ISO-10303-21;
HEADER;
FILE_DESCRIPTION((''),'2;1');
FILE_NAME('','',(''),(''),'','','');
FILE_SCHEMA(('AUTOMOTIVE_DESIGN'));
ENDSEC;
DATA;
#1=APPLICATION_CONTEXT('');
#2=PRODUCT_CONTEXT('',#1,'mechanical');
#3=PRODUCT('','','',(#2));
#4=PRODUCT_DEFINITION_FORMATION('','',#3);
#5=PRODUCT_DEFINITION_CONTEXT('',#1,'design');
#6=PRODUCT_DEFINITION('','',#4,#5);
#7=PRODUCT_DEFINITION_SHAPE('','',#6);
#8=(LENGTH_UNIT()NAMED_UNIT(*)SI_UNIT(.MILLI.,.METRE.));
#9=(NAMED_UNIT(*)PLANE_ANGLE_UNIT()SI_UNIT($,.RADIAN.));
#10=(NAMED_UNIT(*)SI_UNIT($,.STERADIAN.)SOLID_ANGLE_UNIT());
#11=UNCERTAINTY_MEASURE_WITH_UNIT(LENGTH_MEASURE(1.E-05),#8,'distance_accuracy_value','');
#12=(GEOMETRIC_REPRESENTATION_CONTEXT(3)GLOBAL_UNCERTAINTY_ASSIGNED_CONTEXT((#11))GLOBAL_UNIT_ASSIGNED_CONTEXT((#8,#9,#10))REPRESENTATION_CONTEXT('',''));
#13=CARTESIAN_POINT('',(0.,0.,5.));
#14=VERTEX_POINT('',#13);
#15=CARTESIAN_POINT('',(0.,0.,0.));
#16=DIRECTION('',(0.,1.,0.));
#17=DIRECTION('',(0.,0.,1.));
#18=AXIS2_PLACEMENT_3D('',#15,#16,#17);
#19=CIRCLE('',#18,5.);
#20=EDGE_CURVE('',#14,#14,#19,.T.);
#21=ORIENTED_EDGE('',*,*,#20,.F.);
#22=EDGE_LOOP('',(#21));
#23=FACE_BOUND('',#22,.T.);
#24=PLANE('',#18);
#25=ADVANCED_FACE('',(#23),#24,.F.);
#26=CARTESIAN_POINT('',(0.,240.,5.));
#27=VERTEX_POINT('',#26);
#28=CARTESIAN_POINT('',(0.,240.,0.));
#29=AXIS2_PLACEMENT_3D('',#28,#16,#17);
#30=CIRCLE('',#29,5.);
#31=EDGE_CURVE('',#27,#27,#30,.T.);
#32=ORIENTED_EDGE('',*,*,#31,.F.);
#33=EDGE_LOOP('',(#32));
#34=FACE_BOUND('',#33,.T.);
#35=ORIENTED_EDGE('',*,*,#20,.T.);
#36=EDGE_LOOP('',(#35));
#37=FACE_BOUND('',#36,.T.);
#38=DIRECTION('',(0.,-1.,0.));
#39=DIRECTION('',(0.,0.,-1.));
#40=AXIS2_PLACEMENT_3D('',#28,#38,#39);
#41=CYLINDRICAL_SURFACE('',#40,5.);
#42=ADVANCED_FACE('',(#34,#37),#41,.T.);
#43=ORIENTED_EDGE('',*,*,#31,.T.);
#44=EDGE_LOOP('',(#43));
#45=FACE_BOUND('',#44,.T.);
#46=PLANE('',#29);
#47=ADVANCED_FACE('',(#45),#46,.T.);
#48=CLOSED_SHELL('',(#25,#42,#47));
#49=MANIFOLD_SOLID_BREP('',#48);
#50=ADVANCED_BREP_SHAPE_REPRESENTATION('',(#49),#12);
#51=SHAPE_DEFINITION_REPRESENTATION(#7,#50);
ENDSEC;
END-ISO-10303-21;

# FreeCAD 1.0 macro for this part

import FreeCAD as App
import Part
import Sketcher

V = App.Vector
Q = App.Units.Quantity

doc = App.newDocument("Part")
body = doc.addObject("PartDesign::Body", "Body")

# Sketch on XZ plane
sketch1 = body.newObject("Sketcher::SketchObject", "Sketch")
sketch1.AttachmentSupport = (doc.getObject("XZ_Plane"), [""])
sketch1.MapMode = "FlatFace"
sketch1.addGeometry(Part.Circle(V(0, 0, 0), V(0, 0, 1), 5), False)
sketch1.addConstraint([
    Sketcher.Constraint("Coincident", 0, 3, -1, 1),
    Sketcher.Constraint("Diameter", 0, Q("10 mm")),
])
pad1 = body.newObject("PartDesign::Pad", "Pad")
pad1.Profile = sketch1
pad1.Length = 240
pad1.Reversed = True

doc.recompute()
